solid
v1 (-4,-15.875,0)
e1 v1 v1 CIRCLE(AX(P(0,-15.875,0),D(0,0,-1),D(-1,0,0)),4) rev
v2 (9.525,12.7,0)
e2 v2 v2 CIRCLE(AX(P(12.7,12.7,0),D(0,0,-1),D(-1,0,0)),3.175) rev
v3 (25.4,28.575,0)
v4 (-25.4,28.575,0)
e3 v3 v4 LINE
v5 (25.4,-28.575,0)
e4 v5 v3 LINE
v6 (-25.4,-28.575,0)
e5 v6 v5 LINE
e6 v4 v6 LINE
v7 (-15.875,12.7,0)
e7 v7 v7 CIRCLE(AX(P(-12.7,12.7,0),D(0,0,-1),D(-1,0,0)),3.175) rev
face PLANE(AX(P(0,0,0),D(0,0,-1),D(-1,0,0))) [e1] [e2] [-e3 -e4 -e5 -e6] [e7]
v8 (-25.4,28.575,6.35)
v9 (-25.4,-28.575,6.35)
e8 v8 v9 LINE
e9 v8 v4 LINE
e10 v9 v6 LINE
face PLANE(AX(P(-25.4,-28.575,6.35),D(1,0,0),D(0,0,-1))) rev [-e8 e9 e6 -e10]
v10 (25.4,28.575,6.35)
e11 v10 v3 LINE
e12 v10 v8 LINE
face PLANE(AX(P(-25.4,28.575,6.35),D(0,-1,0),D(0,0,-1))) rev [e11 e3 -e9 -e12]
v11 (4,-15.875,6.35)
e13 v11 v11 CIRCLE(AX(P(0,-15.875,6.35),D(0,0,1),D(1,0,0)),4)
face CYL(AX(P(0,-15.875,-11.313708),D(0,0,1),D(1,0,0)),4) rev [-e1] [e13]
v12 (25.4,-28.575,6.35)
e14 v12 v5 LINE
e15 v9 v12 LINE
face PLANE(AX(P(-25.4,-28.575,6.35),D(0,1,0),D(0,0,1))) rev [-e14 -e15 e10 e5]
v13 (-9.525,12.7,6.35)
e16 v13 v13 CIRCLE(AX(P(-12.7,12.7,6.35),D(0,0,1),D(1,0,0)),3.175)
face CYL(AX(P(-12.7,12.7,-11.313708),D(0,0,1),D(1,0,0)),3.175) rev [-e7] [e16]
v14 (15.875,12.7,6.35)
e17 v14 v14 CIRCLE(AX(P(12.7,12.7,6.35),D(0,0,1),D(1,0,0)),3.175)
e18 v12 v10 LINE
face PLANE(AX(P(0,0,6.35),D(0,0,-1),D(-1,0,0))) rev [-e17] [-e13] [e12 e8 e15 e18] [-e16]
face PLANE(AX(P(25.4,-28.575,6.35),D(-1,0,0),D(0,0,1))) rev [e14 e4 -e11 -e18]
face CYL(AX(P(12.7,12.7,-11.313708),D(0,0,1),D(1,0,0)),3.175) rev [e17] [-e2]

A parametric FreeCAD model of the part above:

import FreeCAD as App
import Part
import Sketcher

V = App.Vector
Q = App.Units.Quantity


def add_polygon(sketch, points):
    """Adds a closed chain of lines whose ends are joined by coincident constraints."""
    first, n = sketch.GeometryCount, len(points)
    for a, b in zip(points, points[1:] + points[:1]):
        sketch.addGeometry(Part.LineSegment(App.Vector(*a, 0), App.Vector(*b, 0)), False)
    for i in range(n):
        sketch.addConstraint(Sketcher.Constraint("Coincident", first + i, 2, first + (i + 1) % n, 1))

doc = App.newDocument("Part")
body = doc.addObject("PartDesign::Body", "Body")

sketch1 = doc.addObject("Sketcher::SketchObject", "Sketch")
body.addObject(sketch1)
sketch1.AttachmentSupport = (doc.XY_Plane, [""])
sketch1.MapMode = "FlatFace"
add_polygon(sketch1, [(-25.4, 28.575), (-25.4, -28.575), (25.4, -28.575), (25.4, 28.575)])
sketch1.addConstraint([
    Sketcher.Constraint("Vertical", 0),
    Sketcher.Constraint("Horizontal", 1),
    Sketcher.Constraint("Vertical", 2),
    Sketcher.Constraint("Horizontal", 3),
    Sketcher.Constraint("Symmetric", 0, 2, 2, 2, -1, 1),
    Sketcher.Constraint("DistanceX", 1, 1, 1, 2, Q("2 in")),
    Sketcher.Constraint("DistanceY", 0, 2, 0, 1, Q("2.25 in")),
])
pad1 = doc.addObject("PartDesign::Pad", "Pad")
body.addObject(pad1)
pad1.Profile = sketch1
pad1.Length = Q("0.25 in")

sketch2 = doc.addObject("Sketcher::SketchObject", "Sketch001")
body.addObject(sketch2)
sketch2.AttachmentSupport = (doc.XY_Plane, [""])
sketch2.MapMode = "FlatFace"
sketch2.AttachmentOffset = App.Placement(V(0, 0, 0.25 * 25.4), App.Rotation())
sketch2.addGeometry([
    Part.Circle(V(0, -15.875, 0), V(0, 0, 1), 4),
    Part.Circle(V(-12.7, 12.7, 0), V(0, 0, 1), 3.175),
    Part.Circle(V(12.7, 12.7, 0), V(0, 0, 1), 3.175),
], False)
sketch2.addConstraint([
    Sketcher.Constraint("Equal", 1, 2),
    Sketcher.Constraint("Symmetric", 1, 3, 2, 3, -2),
    Sketcher.Constraint("PointOnObject", 0, 3, -2),
    Sketcher.Constraint("Diameter", 1, Q("0.25 in")),
    Sketcher.Constraint("DistanceX", 1, 3, 2, 3, Q("1 in")),
    Sketcher.Constraint("DistanceY", -1, 1, 1, 3, Q("0.5 in")),
    Sketcher.Constraint("Diameter", 0, Q("8 mm")),
    Sketcher.Constraint("DistanceY", 0, 3, -1, 1, Q("0.625 in")),
])
pocket1 = doc.addObject("PartDesign::Pocket", "Pocket")
body.addObject(pocket1)
pocket1.Profile = sketch2
pocket1.Length = Q("0.25 in")

doc.recompute()
